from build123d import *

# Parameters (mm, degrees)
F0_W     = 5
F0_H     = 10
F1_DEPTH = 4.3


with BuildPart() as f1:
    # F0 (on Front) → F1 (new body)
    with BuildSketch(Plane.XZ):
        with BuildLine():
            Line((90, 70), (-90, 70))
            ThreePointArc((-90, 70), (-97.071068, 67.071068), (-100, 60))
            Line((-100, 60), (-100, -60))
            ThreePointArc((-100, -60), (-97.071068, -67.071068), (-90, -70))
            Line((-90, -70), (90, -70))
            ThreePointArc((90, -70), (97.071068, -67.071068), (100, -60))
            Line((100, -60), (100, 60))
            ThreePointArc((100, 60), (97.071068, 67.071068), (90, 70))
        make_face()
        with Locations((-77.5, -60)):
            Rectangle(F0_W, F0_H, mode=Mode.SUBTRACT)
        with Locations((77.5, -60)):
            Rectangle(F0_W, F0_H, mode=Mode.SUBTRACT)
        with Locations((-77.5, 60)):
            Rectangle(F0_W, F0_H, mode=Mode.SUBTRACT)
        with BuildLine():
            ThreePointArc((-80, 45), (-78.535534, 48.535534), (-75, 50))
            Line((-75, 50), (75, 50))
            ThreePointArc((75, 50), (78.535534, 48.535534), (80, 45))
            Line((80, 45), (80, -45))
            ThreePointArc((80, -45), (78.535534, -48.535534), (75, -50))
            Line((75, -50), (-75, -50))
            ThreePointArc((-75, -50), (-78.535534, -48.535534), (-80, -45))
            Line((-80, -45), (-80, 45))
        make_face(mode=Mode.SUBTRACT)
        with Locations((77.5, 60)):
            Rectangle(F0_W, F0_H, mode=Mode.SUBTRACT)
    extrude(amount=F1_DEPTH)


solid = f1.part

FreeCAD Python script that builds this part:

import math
import FreeCAD as App
import Part
import Sketcher
from FreeCAD import Vector

doc = App.newDocument("Part")
body = doc.addObject("PartDesign::Body", "Body")

# Sketch on XZ plane
sketch1 = doc.addObject("Sketcher::SketchObject", "Sketch")
body.addObject(sketch1)
sketch1.AttachmentSupport = (doc.XZ_Plane, [""])
sketch1.MapMode = "FlatFace"
sketch1.addGeometry([
    Part.LineSegment(Vector(90, 70, 0), Vector(-90, 70, 0)),  # 0
    Part.ArcOfCircle(Part.Circle(Vector(-90, 60, 0), Vector(0, 0, 1), 10), math.radians(90), math.radians(180)),  # 1
    Part.LineSegment(Vector(-100, 60, 0), Vector(-100, -60, 0)),  # 2
    Part.ArcOfCircle(Part.Circle(Vector(-90, -60, 0), Vector(0, 0, 1), 10), math.radians(180), math.radians(270)),  # 3
    Part.LineSegment(Vector(-90, -70, 0), Vector(90, -70, 0)),  # 4
    Part.ArcOfCircle(Part.Circle(Vector(90, -60, 0), Vector(0, 0, 1), 10), math.radians(-90), math.radians(0)),  # 5
    Part.LineSegment(Vector(100, -60, 0), Vector(100, 60, 0)),  # 6
    Part.ArcOfCircle(Part.Circle(Vector(90, 60, 0), Vector(0, 0, 1), 10), math.radians(0), math.radians(90)),  # 7
    Part.LineSegment(Vector(-75, -65, 0), Vector(-80, -65, 0)),  # 8
    Part.LineSegment(Vector(-80, -65, 0), Vector(-80, -55, 0)),  # 9
    Part.LineSegment(Vector(-80, -55, 0), Vector(-75, -55, 0)),  # 10
    Part.LineSegment(Vector(-75, -55, 0), Vector(-75, -65, 0)),  # 11
    Part.LineSegment(Vector(80, -65, 0), Vector(75, -65, 0)),  # 12
    Part.LineSegment(Vector(75, -65, 0), Vector(75, -55, 0)),  # 13
    Part.LineSegment(Vector(75, -55, 0), Vector(80, -55, 0)),  # 14
    Part.LineSegment(Vector(80, -55, 0), Vector(80, -65, 0)),  # 15
    Part.LineSegment(Vector(-75, 55, 0), Vector(-80, 55, 0)),  # 16
    Part.LineSegment(Vector(-80, 55, 0), Vector(-80, 65, 0)),  # 17
    Part.LineSegment(Vector(-80, 65, 0), Vector(-75, 65, 0)),  # 18
    Part.LineSegment(Vector(-75, 65, 0), Vector(-75, 55, 0)),  # 19
    Part.LineSegment(Vector(-80, -45, 0), Vector(-80, 45, 0)),  # 20
    Part.ArcOfCircle(Part.Circle(Vector(-75, 45, 0), Vector(0, 0, 1), 5), math.radians(90), math.radians(180)),  # 21
    Part.LineSegment(Vector(-75, 50, 0), Vector(75, 50, 0)),  # 22
    Part.ArcOfCircle(Part.Circle(Vector(75, 45, 0), Vector(0, 0, 1), 5), math.radians(0), math.radians(90)),  # 23
    Part.LineSegment(Vector(80, 45, 0), Vector(80, -45, 0)),  # 24
    Part.ArcOfCircle(Part.Circle(Vector(75, -45, 0), Vector(0, 0, 1), 5), math.radians(-90), math.radians(0)),  # 25
    Part.LineSegment(Vector(75, -50, 0), Vector(-75, -50, 0)),  # 26
    Part.ArcOfCircle(Part.Circle(Vector(-75, -45, 0), Vector(0, 0, 1), 5), math.radians(180), math.radians(270)),  # 27
    Part.LineSegment(Vector(80, 55, 0), Vector(75, 55, 0)),  # 28
    Part.LineSegment(Vector(75, 55, 0), Vector(75, 65, 0)),  # 29
    Part.LineSegment(Vector(75, 65, 0), Vector(80, 65, 0)),  # 30
    Part.LineSegment(Vector(80, 65, 0), Vector(80, 55, 0)),  # 31
], False)
sketch1.addConstraint([
    Sketcher.Constraint("Tangent", 0, 2, 1, 1),
    Sketcher.Constraint("Tangent", 1, 2, 2, 1),
    Sketcher.Constraint("Tangent", 2, 2, 3, 1),
    Sketcher.Constraint("Tangent", 3, 2, 4, 1),
    Sketcher.Constraint("Tangent", 4, 2, 5, 1),
    Sketcher.Constraint("Tangent", 5, 2, 6, 1),
    Sketcher.Constraint("Tangent", 6, 2, 7, 1),
    Sketcher.Constraint("Tangent", 7, 2, 0, 1),
    Sketcher.Constraint("Coincident", 8, 2, 9, 1),
    Sketcher.Constraint("Coincident", 9, 2, 10, 1),
    Sketcher.Constraint("Coincident", 10, 2, 11, 1),
    Sketcher.Constraint("Coincident", 11, 2, 8, 1),
    Sketcher.Constraint("Coincident", 12, 2, 13, 1),
    Sketcher.Constraint("Coincident", 13, 2, 14, 1),
    Sketcher.Constraint("Coincident", 14, 2, 15, 1),
    Sketcher.Constraint("Coincident", 15, 2, 12, 1),
    Sketcher.Constraint("Coincident", 16, 2, 17, 1),
    Sketcher.Constraint("Coincident", 17, 2, 18, 1),
    Sketcher.Constraint("Coincident", 18, 2, 19, 1),
    Sketcher.Constraint("Coincident", 19, 2, 16, 1),
    Sketcher.Constraint("Tangent", 20, 2, 21, 2),
    Sketcher.Constraint("Tangent", 21, 1, 22, 1),
    Sketcher.Constraint("Tangent", 22, 2, 23, 2),
    Sketcher.Constraint("Tangent", 23, 1, 24, 1),
    Sketcher.Constraint("Tangent", 24, 2, 25, 2),
    Sketcher.Constraint("Tangent", 25, 1, 26, 1),
    Sketcher.Constraint("Tangent", 26, 2, 27, 2),
    Sketcher.Constraint("Tangent", 27, 1, 20, 1),
    Sketcher.Constraint("Coincident", 28, 2, 29, 1),
    Sketcher.Constraint("Coincident", 29, 2, 30, 1),
    Sketcher.Constraint("Coincident", 30, 2, 31, 1),
    Sketcher.Constraint("Coincident", 31, 2, 28, 1),
    Sketcher.Constraint("Horizontal", 0),
    Sketcher.Constraint("Vertical", 2),
    Sketcher.Constraint("Horizontal", 4),
    Sketcher.Constraint("Vertical", 6),
    Sketcher.Constraint("Horizontal", 8),
    Sketcher.Constraint("Vertical", 9),
    Sketcher.Constraint("Horizontal", 10),
    Sketcher.Constraint("Vertical", 11),
    Sketcher.Constraint("Horizontal", 12),
    Sketcher.Constraint("Vertical", 13),
    Sketcher.Constraint("Horizontal", 14),
    Sketcher.Constraint("Vertical", 15),
    Sketcher.Constraint("Horizontal", 16),
    Sketcher.Constraint("Vertical", 17),
    Sketcher.Constraint("Horizontal", 18),
    Sketcher.Constraint("Vertical", 19),
    Sketcher.Constraint("Vertical", 20),
    Sketcher.Constraint("Horizontal", 22),
    Sketcher.Constraint("Vertical", 24),
    Sketcher.Constraint("Horizontal", 26),
    Sketcher.Constraint("Horizontal", 28),
    Sketcher.Constraint("Vertical", 29),
    Sketcher.Constraint("Horizontal", 30),
    Sketcher.Constraint("Vertical", 31),
    Sketcher.Constraint("Equal", 1, 3),
    Sketcher.Constraint("Equal", 3, 5),
    Sketcher.Constraint("Equal", 5, 7),
    Sketcher.Constraint("Equal", 21, 23),
    Sketcher.Constraint("Equal", 23, 25),
    Sketcher.Constraint("Equal", 25, 27),
    Sketcher.Constraint("Symmetric", 1, 3, 5, 3, -1, 1),
    Sketcher.Constraint("Symmetric", 21, 3, 25, 3, -1, 1),
    Sketcher.Constraint("Symmetric", 14, 2, 16, 2, -1, 1),
    Sketcher.Constraint("Symmetric", 12, 2, 18, 2, -1, 1),
    Sketcher.Constraint("Symmetric", 10, 2, 28, 2, -1, 1),
    Sketcher.Constraint("Symmetric", 8, 2, 30, 2, -1, 1),
    Sketcher.Constraint("Symmetric", 11, 2, 12, 2, -2),
    Sketcher.Constraint("Symmetric", 9, 2, 14, 2, -2),
    Sketcher.Constraint("Vertical", 27, 3, 10, 2),
    Sketcher.Constraint("Vertical", 17, 2, 20, 2),
    Sketcher.Constraint("Radius", 1, 9.999999),
    Sketcher.Constraint("Radius", 21, 5.0),
    Sketcher.Constraint("DistanceX", 0, 2, 0, 1, 180.0),
    Sketcher.Constraint("DistanceX", 22, 1, 22, 2, 150.0),
    Sketcher.Constraint("DistanceY", 2, 2, 2, 1, 120.0),
    Sketcher.Constraint("DistanceY", 9, 1, 9, 2, 10.0),
    Sketcher.Constraint("DistanceY", 20, 1, 20, 2, 90.0),
    Sketcher.Constraint("DistanceY", 8, 2, -1, 1, 65.0),
])
pad1 = doc.addObject("PartDesign::Pad", "Pad")
body.addObject(pad1)
pad1.Profile = sketch1
pad1.Length = 4.3

doc.recompute()
